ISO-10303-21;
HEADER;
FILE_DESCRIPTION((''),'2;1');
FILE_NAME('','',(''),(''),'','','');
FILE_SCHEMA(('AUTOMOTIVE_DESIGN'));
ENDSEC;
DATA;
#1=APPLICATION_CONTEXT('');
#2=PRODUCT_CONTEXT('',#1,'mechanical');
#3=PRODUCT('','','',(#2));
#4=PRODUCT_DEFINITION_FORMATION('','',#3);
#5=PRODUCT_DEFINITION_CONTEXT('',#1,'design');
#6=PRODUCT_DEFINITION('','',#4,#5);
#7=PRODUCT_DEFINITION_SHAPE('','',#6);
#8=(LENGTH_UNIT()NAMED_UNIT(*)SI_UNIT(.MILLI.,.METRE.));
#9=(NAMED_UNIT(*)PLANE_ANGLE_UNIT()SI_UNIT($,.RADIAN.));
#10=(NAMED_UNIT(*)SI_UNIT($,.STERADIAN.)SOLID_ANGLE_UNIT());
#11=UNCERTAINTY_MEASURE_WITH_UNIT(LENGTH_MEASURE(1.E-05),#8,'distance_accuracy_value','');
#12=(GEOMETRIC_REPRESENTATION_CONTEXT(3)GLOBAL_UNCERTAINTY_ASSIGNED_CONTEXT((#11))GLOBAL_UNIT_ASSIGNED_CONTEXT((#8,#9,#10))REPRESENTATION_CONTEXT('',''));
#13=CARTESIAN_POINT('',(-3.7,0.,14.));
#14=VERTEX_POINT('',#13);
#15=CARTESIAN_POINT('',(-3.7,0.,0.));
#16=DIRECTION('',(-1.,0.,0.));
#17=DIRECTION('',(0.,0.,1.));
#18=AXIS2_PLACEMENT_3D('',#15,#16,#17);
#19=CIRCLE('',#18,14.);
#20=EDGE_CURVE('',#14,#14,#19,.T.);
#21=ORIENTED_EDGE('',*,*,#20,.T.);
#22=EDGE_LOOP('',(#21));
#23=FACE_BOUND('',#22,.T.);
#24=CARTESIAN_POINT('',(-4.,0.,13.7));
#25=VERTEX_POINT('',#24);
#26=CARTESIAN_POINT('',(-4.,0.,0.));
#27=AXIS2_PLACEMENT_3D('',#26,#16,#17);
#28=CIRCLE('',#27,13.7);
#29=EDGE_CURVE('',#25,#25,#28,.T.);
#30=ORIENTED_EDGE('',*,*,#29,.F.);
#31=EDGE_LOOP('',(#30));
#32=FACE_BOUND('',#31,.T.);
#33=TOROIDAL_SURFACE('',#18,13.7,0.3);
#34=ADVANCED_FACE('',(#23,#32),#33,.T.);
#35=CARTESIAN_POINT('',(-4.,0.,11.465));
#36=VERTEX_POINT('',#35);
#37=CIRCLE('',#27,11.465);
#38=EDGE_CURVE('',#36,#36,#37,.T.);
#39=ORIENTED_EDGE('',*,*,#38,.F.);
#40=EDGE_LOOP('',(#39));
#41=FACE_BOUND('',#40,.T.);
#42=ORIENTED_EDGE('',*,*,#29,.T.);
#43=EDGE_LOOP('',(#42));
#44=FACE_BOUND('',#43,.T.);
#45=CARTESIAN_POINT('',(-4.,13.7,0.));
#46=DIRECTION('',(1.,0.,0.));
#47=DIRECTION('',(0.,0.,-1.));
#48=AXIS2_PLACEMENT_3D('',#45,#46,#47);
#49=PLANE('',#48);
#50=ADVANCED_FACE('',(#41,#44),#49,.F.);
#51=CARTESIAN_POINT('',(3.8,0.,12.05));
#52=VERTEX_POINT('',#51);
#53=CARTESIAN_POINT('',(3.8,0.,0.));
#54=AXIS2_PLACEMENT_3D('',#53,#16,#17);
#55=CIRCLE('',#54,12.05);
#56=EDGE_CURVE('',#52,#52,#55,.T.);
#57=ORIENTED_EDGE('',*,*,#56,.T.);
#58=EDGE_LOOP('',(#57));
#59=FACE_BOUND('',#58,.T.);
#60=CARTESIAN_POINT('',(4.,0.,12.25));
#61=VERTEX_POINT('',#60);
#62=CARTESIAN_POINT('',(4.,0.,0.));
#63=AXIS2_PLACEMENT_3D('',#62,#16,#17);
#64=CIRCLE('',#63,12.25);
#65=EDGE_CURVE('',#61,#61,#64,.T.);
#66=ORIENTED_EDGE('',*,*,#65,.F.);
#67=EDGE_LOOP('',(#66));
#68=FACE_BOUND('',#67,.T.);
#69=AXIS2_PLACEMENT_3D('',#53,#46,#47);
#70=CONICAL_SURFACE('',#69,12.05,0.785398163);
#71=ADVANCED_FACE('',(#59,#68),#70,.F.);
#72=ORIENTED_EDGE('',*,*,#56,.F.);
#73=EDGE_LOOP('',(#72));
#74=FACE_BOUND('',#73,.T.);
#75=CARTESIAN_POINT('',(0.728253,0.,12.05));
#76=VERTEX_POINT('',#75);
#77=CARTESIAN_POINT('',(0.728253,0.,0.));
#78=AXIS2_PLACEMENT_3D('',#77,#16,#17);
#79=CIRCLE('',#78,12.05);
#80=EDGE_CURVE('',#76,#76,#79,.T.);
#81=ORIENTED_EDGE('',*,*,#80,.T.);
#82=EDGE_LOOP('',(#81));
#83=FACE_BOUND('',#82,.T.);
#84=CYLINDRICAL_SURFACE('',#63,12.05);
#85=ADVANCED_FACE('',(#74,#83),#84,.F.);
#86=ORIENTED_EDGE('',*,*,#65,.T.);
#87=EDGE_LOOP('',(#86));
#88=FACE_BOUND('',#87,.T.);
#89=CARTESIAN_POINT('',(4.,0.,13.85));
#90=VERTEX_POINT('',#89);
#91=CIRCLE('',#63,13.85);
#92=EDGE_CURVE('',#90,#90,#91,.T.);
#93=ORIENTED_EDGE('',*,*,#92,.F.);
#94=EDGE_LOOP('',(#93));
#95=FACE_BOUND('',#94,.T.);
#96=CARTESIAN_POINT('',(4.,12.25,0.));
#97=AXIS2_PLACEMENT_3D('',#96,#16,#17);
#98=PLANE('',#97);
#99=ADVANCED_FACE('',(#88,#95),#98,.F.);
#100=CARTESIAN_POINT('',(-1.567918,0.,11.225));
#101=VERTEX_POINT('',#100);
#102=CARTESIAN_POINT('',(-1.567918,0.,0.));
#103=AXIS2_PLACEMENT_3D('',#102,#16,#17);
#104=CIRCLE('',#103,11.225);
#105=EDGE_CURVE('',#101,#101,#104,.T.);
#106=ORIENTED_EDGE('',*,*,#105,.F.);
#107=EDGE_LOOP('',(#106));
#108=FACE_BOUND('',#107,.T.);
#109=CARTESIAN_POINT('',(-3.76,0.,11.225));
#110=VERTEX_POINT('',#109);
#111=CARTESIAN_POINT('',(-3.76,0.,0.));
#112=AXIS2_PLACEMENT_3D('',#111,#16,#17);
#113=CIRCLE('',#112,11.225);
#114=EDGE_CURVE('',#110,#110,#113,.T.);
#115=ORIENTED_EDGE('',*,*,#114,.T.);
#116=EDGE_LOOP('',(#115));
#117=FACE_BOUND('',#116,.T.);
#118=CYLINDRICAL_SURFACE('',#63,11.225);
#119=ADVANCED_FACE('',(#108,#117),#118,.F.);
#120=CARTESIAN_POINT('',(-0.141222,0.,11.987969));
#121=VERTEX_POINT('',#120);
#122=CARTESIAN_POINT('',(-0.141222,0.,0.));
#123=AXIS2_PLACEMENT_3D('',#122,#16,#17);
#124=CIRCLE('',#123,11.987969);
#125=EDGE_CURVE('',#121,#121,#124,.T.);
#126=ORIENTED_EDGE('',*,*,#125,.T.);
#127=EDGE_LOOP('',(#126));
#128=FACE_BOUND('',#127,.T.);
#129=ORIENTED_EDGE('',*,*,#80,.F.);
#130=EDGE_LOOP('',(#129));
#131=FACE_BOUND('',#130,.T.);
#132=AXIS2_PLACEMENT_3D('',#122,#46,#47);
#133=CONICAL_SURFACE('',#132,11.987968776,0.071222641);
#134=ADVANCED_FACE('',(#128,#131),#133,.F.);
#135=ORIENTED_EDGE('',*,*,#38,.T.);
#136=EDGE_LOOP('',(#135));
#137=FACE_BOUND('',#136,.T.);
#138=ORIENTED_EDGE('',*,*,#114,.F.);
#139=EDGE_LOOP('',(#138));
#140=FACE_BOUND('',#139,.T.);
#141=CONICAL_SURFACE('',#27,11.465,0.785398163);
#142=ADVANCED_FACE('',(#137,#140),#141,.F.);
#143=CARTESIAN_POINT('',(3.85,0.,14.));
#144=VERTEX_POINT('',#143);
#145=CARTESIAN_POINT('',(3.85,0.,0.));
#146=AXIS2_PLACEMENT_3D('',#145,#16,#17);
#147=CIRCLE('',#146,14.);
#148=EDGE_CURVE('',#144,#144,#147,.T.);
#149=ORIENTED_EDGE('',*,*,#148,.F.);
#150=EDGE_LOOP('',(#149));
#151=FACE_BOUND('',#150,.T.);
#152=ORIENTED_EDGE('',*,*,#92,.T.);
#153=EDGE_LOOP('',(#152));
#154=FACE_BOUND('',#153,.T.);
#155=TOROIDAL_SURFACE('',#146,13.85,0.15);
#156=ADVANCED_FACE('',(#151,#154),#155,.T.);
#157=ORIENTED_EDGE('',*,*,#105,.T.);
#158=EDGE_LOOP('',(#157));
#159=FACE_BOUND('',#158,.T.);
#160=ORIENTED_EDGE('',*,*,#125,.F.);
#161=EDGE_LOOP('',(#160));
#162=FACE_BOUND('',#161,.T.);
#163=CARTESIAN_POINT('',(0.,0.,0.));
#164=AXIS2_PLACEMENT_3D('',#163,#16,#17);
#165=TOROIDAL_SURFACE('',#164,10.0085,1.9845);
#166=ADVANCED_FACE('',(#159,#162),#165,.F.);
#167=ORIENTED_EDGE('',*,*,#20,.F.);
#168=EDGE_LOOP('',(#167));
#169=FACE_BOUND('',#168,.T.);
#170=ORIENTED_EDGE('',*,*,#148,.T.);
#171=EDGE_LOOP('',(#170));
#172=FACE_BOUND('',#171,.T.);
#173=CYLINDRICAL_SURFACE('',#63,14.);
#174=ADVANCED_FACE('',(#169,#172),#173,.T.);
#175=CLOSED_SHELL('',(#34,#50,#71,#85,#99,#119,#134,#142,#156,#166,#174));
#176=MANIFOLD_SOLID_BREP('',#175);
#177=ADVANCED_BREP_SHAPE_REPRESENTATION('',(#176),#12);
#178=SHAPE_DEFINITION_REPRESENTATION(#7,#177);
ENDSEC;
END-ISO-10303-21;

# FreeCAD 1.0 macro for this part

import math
import FreeCAD as App
import Part
import Sketcher
Q = App.Units.Quantity

doc = App.newDocument("Part")
body = doc.addObject("PartDesign::Body", "Body")

# Sketch on XY plane
sketch1 = doc.addObject("Sketcher::SketchObject", "Sketch")
body.addObject(sketch1)
sketch1.AttachmentSupport = (doc.XY_Plane, [""])
sketch1.MapMode = "FlatFace"
sketch1.addGeometry([
    Part.LineSegment(App.Vector(-4, 11.46, 0), App.Vector(-3.76, 11.22, 0)),  # 0
    Part.LineSegment(App.Vector(-3.76, 11.22, 0), App.Vector(-1.57, 11.22, 0)),  # 1
    Part.ArcOfCircle(Part.Circle(App.Vector(0, 10.01, 0), App.Vector(0, 0, 1), 1.98), math.radians(94), math.radians(142)),  # 2
    Part.LineSegment(App.Vector(-0.14, 11.99, 0), App.Vector(0.73, 12.05, 0)),  # 3
    Part.LineSegment(App.Vector(0.73, 12.05, 0), App.Vector(3.8, 12.05, 0)),  # 4
    Part.LineSegment(App.Vector(3.8, 12.05, 0), App.Vector(4, 12.25, 0)),  # 5
    Part.LineSegment(App.Vector(4, 12.25, 0), App.Vector(4, 13.85, 0)),  # 6
    Part.ArcOfCircle(Part.Circle(App.Vector(3.85, 13.85, 0), App.Vector(0, 0, 1), 0.15), math.radians(0), math.radians(90)),  # 7
    Part.LineSegment(App.Vector(3.85, 14, 0), App.Vector(-3.7, 14, 0)),  # 8
    Part.ArcOfCircle(Part.Circle(App.Vector(-3.7, 13.7, 0), App.Vector(0, 0, 1), 0.3), math.radians(90), math.radians(180)),  # 9
    Part.LineSegment(App.Vector(-4, 13.7, 0), App.Vector(-4, 11.46, 0)),  # 10
], False)
sketch1.addConstraint([
    Sketcher.Constraint("Coincident", 0, 2, 1, 1),
    Sketcher.Constraint("Coincident", 1, 2, 2, 2),
    Sketcher.Constraint("Tangent", 2, 1, 3, 1),
    Sketcher.Constraint("Coincident", 3, 2, 4, 1),
    Sketcher.Constraint("Coincident", 4, 2, 5, 1),
    Sketcher.Constraint("Coincident", 5, 2, 6, 1),
    Sketcher.Constraint("Tangent", 6, 2, 7, 1),
    Sketcher.Constraint("Tangent", 7, 2, 8, 1),
    Sketcher.Constraint("Tangent", 8, 2, 9, 1),
    Sketcher.Constraint("Tangent", 9, 2, 10, 1),
    Sketcher.Constraint("Coincident", 10, 2, 0, 1),
    Sketcher.Constraint("Horizontal", 1),
    Sketcher.Constraint("Horizontal", 4),
    Sketcher.Constraint("Vertical", 6),
    Sketcher.Constraint("Horizontal", 8),
    Sketcher.Constraint("Vertical", 10),
    Sketcher.Constraint("PointOnObject", 2, 3, -2),
    Sketcher.Constraint("Perpendicular", 0, 5),
    Sketcher.Constraint("Radius", 9, 0.3),
    Sketcher.Constraint("Angle", 0, Q("-45 deg")),
    Sketcher.Constraint("Radius", 7, 0.15),
    Sketcher.Constraint("DistanceY", 6, 1, 6, 2, 1.6),
    Sketcher.Constraint("DistanceX", -1, 1, 5, 2, 4.0),
    Sketcher.Constraint("DistanceY", -1, 1, 7, 2, 14.0),
    Sketcher.Constraint("DistanceX", 9, 2, -1, 1, 4.0),
    Sketcher.Constraint("DistanceX", -1, 1, 4, 2, 3.8),
    Sketcher.Constraint("Radius", 2, 1.9845),
    Sketcher.Constraint("DistanceY", 10, 2, 10, 1, 2.235),
    Sketcher.Constraint("DistanceX", 0, 2, -1, 1, 3.76),
    Sketcher.Constraint("DistanceX", 1, 1, 1, 2, 2.192082),
    Sketcher.Constraint("DistanceX", 4, 1, 4, 2, 3.071747),
])
revolution = doc.addObject("PartDesign::Revolution", "Revolution")
body.addObject(revolution)
revolution.Profile = sketch1
revolution.ReferenceAxis = (sketch1, ["H_Axis"])
revolution.Angle = 360

doc.recompute()
